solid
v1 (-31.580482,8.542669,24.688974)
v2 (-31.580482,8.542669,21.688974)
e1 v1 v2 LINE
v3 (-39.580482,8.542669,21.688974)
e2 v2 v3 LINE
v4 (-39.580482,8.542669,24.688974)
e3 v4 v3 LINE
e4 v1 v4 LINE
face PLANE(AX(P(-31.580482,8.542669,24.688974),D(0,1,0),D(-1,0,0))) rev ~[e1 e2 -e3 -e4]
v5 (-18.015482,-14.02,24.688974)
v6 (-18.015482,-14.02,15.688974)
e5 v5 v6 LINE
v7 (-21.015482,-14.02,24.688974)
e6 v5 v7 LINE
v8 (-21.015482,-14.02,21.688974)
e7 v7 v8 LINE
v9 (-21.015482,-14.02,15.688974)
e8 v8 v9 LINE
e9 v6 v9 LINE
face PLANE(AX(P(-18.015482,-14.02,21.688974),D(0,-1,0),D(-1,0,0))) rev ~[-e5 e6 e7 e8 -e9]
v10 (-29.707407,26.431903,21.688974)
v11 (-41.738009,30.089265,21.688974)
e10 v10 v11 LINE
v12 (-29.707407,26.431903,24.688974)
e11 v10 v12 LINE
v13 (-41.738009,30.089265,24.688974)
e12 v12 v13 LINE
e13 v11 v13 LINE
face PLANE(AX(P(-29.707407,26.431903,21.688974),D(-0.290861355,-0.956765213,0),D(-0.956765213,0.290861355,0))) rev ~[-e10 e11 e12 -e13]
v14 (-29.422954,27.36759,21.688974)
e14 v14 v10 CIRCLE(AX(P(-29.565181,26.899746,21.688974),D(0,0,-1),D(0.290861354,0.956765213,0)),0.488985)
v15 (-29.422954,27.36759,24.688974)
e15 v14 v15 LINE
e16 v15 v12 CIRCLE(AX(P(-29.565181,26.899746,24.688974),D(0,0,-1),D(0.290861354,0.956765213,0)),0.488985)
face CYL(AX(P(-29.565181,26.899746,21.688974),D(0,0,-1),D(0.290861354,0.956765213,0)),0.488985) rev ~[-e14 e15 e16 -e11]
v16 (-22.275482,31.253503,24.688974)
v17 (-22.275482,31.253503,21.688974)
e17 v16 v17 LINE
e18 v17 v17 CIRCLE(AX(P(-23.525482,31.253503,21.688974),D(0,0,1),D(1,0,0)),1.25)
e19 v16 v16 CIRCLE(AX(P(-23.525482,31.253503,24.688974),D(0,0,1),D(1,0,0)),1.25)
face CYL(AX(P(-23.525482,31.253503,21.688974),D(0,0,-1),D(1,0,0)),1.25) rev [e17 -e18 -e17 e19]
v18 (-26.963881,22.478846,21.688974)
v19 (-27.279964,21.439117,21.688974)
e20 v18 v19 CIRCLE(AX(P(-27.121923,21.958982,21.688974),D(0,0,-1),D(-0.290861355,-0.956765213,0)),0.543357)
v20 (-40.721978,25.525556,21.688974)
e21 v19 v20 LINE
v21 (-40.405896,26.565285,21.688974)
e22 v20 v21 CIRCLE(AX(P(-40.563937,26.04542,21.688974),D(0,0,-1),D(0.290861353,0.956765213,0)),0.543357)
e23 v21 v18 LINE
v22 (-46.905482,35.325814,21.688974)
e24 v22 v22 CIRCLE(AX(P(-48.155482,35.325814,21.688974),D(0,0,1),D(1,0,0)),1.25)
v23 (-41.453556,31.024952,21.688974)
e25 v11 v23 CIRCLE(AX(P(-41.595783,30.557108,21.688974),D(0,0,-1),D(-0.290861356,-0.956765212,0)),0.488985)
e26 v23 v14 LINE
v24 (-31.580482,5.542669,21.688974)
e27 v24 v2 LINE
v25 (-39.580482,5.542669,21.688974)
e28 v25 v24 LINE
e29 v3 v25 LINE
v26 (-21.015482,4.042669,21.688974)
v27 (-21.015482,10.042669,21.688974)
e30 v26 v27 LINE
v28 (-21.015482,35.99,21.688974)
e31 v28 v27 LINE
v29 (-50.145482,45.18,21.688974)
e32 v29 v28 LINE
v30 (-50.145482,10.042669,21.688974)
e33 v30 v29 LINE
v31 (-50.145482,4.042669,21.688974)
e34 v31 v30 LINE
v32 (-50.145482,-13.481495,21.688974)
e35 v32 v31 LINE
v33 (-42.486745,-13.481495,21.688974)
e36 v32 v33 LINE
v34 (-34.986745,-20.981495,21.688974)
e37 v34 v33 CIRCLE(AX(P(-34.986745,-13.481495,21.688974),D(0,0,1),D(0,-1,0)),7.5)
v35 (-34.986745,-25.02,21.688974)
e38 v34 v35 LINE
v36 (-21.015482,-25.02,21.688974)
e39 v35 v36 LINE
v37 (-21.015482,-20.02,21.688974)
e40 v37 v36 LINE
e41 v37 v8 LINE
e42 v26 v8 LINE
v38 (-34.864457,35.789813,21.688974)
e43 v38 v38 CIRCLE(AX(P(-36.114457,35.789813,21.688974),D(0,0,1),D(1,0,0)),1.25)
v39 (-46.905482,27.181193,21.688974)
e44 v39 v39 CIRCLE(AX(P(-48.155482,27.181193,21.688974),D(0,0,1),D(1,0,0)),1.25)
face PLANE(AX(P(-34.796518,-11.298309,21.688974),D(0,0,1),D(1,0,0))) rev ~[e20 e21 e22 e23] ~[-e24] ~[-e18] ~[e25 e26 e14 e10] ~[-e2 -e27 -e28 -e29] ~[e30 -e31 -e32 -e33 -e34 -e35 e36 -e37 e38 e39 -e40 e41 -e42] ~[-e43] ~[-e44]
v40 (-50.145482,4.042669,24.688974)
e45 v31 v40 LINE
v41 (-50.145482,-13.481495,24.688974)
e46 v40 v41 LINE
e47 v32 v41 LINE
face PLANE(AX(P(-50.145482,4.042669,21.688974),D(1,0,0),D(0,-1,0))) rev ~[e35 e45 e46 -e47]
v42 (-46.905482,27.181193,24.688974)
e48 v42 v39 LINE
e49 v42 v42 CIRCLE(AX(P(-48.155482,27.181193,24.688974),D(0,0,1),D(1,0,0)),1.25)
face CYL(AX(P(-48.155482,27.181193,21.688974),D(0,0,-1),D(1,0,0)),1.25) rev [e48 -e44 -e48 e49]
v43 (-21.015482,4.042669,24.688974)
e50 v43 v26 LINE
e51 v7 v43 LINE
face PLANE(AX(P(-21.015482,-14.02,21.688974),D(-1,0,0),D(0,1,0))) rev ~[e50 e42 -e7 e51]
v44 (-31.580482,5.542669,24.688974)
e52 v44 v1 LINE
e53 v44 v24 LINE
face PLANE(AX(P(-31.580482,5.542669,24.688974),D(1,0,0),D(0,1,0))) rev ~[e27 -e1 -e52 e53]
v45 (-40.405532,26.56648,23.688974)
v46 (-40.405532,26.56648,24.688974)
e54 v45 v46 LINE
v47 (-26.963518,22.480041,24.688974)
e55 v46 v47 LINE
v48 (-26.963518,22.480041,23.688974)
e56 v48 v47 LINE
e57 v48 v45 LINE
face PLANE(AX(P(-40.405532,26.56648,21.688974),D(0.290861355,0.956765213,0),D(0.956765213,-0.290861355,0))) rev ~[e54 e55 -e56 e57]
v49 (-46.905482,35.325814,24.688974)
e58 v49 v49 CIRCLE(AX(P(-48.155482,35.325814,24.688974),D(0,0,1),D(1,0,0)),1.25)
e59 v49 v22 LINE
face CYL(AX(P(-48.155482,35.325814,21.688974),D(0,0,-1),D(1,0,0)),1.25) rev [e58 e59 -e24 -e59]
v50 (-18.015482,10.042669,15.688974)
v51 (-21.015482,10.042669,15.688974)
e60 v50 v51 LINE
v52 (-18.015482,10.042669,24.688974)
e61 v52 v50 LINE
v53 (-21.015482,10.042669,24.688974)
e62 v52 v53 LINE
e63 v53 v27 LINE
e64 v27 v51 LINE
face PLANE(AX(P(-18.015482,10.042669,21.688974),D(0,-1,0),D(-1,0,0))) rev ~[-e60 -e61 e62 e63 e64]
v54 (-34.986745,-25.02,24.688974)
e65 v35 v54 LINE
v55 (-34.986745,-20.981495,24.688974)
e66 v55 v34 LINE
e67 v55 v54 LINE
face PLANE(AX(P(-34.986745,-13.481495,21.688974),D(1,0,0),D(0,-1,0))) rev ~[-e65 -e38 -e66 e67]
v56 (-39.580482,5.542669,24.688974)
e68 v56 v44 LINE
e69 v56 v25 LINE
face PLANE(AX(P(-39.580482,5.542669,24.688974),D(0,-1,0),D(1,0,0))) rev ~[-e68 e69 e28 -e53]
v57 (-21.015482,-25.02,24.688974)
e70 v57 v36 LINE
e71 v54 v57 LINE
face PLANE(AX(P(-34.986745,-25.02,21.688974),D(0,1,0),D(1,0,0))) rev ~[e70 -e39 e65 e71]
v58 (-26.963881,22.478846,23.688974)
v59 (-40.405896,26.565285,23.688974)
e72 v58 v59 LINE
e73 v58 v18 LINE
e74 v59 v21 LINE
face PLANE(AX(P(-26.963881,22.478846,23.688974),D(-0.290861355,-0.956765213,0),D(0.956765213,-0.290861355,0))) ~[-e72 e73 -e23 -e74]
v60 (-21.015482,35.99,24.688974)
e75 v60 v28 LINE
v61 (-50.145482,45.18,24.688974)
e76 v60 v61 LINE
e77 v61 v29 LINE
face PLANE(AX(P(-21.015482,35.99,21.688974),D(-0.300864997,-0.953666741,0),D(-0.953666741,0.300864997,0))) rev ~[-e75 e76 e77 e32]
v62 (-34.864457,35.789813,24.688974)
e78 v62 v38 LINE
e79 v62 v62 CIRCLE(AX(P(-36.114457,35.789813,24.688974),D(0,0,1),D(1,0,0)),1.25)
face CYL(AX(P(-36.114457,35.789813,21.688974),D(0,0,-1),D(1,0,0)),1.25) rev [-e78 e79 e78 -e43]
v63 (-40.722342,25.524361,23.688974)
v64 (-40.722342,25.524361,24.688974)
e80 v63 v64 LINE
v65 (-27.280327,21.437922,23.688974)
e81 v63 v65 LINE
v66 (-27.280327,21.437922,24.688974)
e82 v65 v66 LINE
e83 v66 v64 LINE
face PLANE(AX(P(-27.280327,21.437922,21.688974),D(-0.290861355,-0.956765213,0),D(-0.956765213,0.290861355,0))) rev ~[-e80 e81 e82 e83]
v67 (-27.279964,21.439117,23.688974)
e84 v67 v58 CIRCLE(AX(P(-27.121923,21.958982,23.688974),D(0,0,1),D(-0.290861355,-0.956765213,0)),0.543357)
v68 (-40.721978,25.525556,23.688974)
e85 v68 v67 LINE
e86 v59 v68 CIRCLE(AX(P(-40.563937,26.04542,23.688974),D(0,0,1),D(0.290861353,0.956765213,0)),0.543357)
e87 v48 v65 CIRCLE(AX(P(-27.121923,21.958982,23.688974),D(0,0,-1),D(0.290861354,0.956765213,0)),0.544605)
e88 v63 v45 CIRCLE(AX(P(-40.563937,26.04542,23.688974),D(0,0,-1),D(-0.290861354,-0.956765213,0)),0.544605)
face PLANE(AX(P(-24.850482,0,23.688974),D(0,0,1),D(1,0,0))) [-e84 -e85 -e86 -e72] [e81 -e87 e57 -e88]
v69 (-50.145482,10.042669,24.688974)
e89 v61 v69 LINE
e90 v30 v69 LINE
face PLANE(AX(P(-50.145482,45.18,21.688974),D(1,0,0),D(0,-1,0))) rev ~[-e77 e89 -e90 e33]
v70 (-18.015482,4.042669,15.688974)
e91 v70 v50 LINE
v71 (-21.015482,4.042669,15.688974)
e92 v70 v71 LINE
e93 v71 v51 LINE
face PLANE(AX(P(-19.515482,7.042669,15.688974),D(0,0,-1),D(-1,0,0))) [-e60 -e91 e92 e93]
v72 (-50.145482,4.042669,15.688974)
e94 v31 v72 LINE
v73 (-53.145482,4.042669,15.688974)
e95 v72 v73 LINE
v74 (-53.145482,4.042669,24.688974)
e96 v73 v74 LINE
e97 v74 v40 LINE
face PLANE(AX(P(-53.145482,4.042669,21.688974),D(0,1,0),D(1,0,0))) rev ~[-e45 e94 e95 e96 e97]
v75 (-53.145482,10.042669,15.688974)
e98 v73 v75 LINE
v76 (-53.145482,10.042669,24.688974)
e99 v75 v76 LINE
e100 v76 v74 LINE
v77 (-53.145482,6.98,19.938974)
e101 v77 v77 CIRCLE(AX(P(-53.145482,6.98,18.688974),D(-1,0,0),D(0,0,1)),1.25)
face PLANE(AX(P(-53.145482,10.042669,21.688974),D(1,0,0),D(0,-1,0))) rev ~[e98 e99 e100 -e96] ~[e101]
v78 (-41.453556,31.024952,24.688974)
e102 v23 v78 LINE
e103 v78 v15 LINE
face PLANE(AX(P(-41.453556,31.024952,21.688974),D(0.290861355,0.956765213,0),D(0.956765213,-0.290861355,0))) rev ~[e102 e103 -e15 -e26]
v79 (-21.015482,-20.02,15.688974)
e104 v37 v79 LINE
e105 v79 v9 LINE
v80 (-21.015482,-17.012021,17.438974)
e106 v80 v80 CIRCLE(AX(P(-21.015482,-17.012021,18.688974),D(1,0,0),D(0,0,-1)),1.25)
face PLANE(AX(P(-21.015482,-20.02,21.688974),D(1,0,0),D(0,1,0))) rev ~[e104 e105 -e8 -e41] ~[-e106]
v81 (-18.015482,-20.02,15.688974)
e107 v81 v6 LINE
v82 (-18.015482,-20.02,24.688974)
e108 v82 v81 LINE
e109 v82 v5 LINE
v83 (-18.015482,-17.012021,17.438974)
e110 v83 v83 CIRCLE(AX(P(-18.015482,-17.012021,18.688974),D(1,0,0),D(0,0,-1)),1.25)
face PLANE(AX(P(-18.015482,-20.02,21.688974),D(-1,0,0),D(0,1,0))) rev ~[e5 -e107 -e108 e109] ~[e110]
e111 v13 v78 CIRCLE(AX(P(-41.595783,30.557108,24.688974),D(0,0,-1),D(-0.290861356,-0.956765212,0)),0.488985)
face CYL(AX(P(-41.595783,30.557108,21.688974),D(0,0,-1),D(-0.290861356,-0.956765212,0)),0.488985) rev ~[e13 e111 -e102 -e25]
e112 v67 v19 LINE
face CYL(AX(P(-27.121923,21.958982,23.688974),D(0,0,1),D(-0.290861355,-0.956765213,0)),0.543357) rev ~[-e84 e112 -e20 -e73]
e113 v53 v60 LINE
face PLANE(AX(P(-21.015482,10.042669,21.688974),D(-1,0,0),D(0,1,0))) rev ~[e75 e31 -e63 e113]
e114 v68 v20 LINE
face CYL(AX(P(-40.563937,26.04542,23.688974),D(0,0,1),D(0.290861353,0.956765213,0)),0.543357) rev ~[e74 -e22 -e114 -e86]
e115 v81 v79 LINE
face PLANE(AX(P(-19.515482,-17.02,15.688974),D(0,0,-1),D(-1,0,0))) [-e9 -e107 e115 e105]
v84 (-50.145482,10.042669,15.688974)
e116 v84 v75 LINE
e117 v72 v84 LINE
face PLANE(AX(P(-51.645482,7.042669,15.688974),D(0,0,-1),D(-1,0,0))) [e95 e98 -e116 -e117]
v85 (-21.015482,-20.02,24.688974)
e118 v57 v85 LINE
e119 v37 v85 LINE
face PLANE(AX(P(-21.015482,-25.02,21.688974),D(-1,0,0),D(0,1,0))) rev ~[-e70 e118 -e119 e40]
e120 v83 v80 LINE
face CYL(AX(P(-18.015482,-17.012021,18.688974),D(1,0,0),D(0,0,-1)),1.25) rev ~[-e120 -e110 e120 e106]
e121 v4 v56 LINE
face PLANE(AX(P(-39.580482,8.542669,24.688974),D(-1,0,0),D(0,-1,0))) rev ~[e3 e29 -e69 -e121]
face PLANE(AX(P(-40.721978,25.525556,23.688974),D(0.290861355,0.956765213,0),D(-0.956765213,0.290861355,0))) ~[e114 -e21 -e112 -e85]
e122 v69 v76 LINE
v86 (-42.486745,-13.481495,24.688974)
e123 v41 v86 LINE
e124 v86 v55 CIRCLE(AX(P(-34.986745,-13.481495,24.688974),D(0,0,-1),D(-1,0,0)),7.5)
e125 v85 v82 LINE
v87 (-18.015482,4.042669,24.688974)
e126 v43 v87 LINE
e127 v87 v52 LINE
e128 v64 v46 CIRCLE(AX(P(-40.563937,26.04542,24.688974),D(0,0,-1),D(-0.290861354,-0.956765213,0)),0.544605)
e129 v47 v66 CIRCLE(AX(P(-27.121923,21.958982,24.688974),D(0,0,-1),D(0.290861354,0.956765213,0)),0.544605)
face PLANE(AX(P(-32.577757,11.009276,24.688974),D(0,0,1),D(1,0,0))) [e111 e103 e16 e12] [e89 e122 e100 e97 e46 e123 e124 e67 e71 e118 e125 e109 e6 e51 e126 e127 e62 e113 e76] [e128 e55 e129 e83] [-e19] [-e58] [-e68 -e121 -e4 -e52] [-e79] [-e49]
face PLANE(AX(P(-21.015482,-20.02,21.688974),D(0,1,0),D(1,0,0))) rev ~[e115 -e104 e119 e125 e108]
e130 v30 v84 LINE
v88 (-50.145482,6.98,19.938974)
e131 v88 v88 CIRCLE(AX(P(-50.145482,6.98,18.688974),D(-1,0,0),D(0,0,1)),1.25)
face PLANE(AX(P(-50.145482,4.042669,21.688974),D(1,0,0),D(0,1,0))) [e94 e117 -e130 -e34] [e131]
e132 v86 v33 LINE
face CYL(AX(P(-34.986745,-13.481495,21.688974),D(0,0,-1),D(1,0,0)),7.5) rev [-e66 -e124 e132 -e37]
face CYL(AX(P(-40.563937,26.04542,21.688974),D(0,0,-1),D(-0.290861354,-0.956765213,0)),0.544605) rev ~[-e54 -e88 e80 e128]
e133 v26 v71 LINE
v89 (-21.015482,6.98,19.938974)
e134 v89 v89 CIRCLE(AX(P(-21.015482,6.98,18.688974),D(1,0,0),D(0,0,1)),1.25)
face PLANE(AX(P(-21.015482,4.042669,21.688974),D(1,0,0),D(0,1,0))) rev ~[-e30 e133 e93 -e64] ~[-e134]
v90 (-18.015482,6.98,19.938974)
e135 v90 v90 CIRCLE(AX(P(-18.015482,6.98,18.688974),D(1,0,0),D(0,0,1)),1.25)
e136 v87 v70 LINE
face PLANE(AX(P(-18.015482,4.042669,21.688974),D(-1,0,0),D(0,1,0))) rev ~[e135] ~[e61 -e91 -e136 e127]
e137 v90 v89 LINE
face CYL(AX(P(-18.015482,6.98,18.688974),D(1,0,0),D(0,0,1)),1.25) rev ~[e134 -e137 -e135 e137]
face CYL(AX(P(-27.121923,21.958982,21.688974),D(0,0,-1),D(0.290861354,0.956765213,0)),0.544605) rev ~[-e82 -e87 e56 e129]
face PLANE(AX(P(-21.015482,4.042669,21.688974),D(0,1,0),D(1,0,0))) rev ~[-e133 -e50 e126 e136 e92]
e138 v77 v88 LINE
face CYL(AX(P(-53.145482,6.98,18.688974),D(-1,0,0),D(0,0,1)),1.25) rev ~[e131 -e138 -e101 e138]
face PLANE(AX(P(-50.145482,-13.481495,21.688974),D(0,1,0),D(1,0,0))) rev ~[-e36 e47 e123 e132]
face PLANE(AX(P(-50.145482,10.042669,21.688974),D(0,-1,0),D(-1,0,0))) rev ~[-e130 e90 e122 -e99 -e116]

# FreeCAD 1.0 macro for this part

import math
import FreeCAD as App
import Part
import Sketcher
Q = App.Units.Quantity


def add_polygon(sketch, points):
    """Adds a closed chain of lines whose ends are joined by coincident constraints."""
    first, n = sketch.GeometryCount, len(points)
    for a, b in zip(points, points[1:] + points[:1]):
        sketch.addGeometry(Part.LineSegment(App.Vector(*a, 0), App.Vector(*b, 0)), False)
    for i in range(n):
        sketch.addConstraint(Sketcher.Constraint("Coincident", first + i, 2, first + (i + 1) % n, 1))

doc = App.newDocument("Part")
body = doc.addObject("PartDesign::Body", "Body")

# Sketch on XZ plane
sketch1 = body.newObject("Sketcher::SketchObject", "Sketch")
sketch1.AttachmentSupport = (doc.getObject("XZ_Plane"), [""])
sketch1.MapMode = "FlatFace"
add_polygon(sketch1, [(-50.1, 21.7), (-50.1, 23.7), (-21, 23.7), (-21, 21.7)])  # lines 0-3
sketch1.addConstraint([
    Sketcher.Constraint("Vertical", 0),
    Sketcher.Constraint("Horizontal", 1),
    Sketcher.Constraint("Vertical", 2),
    Sketcher.Constraint("Horizontal", 3),
    Sketcher.Constraint("DistanceY", 0, 1, 0, 2, Q("2 mm")),
    Sketcher.Constraint("DistanceX", 1, 1, 1, 2, Q("29.13 mm")),
    Sketcher.Constraint("DistanceX", 0, 2, -1, 1, Q("50.145482 mm")),
    Sketcher.Constraint("DistanceY", -1, 1, 0, 2, Q("23.688974 mm")),
])
pad1 = body.newObject("PartDesign::Pad", "Pad")
pad1.Profile = sketch1
pad1.Length = 45.22
pad1.Reversed = True

# Sketch on XZ plane
sketch2 = body.newObject("Sketcher::SketchObject", "Sketch001")
sketch2.AttachmentSupport = (doc.getObject("XZ_Plane"), [""])
sketch2.MapMode = "FlatFace"
add_polygon(sketch2, [(-24.9, 23.7), (-24.9, 21.7), (-21, 21.7), (-21, 23.7)])  # lines 0-3
sketch2.addConstraint([
    Sketcher.Constraint("Vertical", 0),
    Sketcher.Constraint("Horizontal", 1),
    Sketcher.Constraint("Vertical", 2),
    Sketcher.Constraint("Horizontal", 3),
    Sketcher.Constraint("DistanceY", 0, 2, 0, 1, Q("2 mm")),
    Sketcher.Constraint("DistanceX", 1, 1, 1, 2, Q("3.835 mm")),
    Sketcher.Constraint("DistanceX", 0, 2, -1, 1, Q("24.850482 mm")),
    Sketcher.Constraint("DistanceY", -1, 1, 0, 2, Q("21.688974 mm")),
])
pad2 = body.newObject("PartDesign::Pad", "Pad001")
pad2.Profile = sketch2
pad2.Length = 25.02

# Sketch on XY plane
sketch3 = body.newObject("Sketcher::SketchObject", "Sketch002")
sketch3.AttachmentSupport = (doc.getObject("XY_Plane"), [""])
sketch3.MapMode = "FlatFace"
sketch3.AttachmentOffset = App.Placement(App.Vector(0, 0, 23.688974), App.Rotation())
add_polygon(sketch3, [(-21, -25), (-24.9, 0), (-24.9, -25)])  # lines 0-2
sketch3.addConstraint([
    Sketcher.Constraint("Vertical", 1),
    Sketcher.Constraint("Horizontal", 2),
    Sketcher.Constraint("PointOnObject", 0, 2, -1),
    Sketcher.Constraint("DistanceY", 1, 2, 1, 1, Q("25.02 mm")),
    Sketcher.Constraint("DistanceX", 2, 1, 2, 2, Q("3.835 mm")),
    Sketcher.Constraint("DistanceX", 0, 2, -1, 1, Q("24.850482 mm")),
])
pocket1 = body.newObject("PartDesign::Pocket", "Pocket")
pocket1.Profile = sketch3
pocket1.Length = 4

# Sketch on YZ plane
sketch4 = body.newObject("Sketcher::SketchObject", "Sketch003")
sketch4.AttachmentSupport = (doc.getObject("YZ_Plane"), [""])
sketch4.MapMode = "FlatFace"
sketch4.AttachmentOffset = App.Placement(App.Vector(0, 0, -21.015482), App.Rotation())
add_polygon(sketch4, [(-14, 23.7), (-20, 23.7), (-20, 21.7), (-14, 21.7)])  # lines 0-3
sketch4.addConstraint([
    Sketcher.Constraint("Horizontal", 0),
    Sketcher.Constraint("Vertical", 1),
    Sketcher.Constraint("Horizontal", 2),
    Sketcher.Constraint("Vertical", 3),
    Sketcher.Constraint("DistanceX", 0, 2, 0, 1, Q("6 mm")),
    Sketcher.Constraint("DistanceY", 1, 2, 1, 1, Q("2 mm")),
    Sketcher.Constraint("DistanceX", 0, 2, -1, 1, Q("20.02 mm")),
    Sketcher.Constraint("DistanceY", -1, 1, 0, 2, Q("23.688974 mm")),
])
pad3 = body.newObject("PartDesign::Pad", "Pad002")
pad3.Profile = sketch4
pad3.Length = 3

# Sketch on XY plane
sketch5 = body.newObject("Sketcher::SketchObject", "Sketch004")
sketch5.AttachmentSupport = (doc.getObject("XY_Plane"), [""])
sketch5.MapMode = "FlatFace"
sketch5.AttachmentOffset = App.Placement(App.Vector(0, 0, 21.688974), App.Rotation())
add_polygon(sketch5, [(-18, -14), (-18, -20), (-21, -20), (-21, -14)])  # lines 0-3
sketch5.addConstraint([
    Sketcher.Constraint("Vertical", 0),
    Sketcher.Constraint("Horizontal", 1),
    Sketcher.Constraint("Vertical", 2),
    Sketcher.Constraint("Horizontal", 3),
    Sketcher.Constraint("DistanceX", 1, 2, 1, 1, Q("3 mm")),
    Sketcher.Constraint("DistanceY", 0, 2, 0, 1, Q("6 mm")),
    Sketcher.Constraint("DistanceY", 0, 2, -1, 1, Q("20.02 mm")),
    Sketcher.Constraint("DistanceX", 0, 2, -1, 1, Q("18.015482 mm")),
])
pad4 = body.newObject("PartDesign::Pad", "Pad003")
pad4.Profile = sketch5
pad4.Length = 6
pad4.Reversed = True

# Sketch on YZ plane
sketch6 = body.newObject("Sketcher::SketchObject", "Sketch005")
sketch6.AttachmentSupport = (doc.getObject("YZ_Plane"), [""])
sketch6.MapMode = "FlatFace"
sketch6.AttachmentOffset = App.Placement(App.Vector(0, 0, -18.015482), App.Rotation())
sketch6.addGeometry(Part.Circle(App.Vector(-17, 18.7, 0), App.Vector(0, 0, 1), 1.2), False)
sketch6.addConstraint([
    Sketcher.Constraint("Diameter", 0, Q("2.5 mm")),
    Sketcher.Constraint("DistanceX", 0, 3, -1, 1, Q("17.012021 mm")),
    Sketcher.Constraint("DistanceY", -1, 1, 0, 3, Q("18.688974 mm")),
])
pocket2 = body.newObject("PartDesign::Pocket", "Pocket001")
pocket2.Profile = sketch6
pocket2.Length = 6

# Sketch on XY plane
sketch7 = body.newObject("Sketcher::SketchObject", "Sketch006")
sketch7.AttachmentSupport = (doc.getObject("XY_Plane"), [""])
sketch7.MapMode = "FlatFace"
sketch7.AttachmentOffset = App.Placement(App.Vector(0, 0, 23.688974), App.Rotation())
add_polygon(sketch7, [(-21, 38), (-21, 45), (-50, 45)])  # lines 0-2
sketch7.addConstraint([
    Sketcher.Constraint("Vertical", 0),
    Sketcher.Constraint("Horizontal", 1),
    Sketcher.Constraint("DistanceX", 1, 2, 1, 1, Q("29.13 mm")),
    Sketcher.Constraint("DistanceY", 0, 1, 0, 2, Q("7.65 mm")),
    Sketcher.Constraint("DistanceY", -1, 1, 0, 2, Q("45.22 mm")),
    Sketcher.Constraint("DistanceX", 0, 2, -1, 1, Q("21.015482 mm")),
])
pocket3 = body.newObject("PartDesign::Pocket", "Pocket002")
pocket3.Profile = sketch7
pocket3.Length = 4

# Sketch on XY plane
sketch8 = body.newObject("Sketcher::SketchObject", "Sketch007")
sketch8.AttachmentSupport = (doc.getObject("XY_Plane"), [""])
sketch8.MapMode = "FlatFace"
sketch8.AttachmentOffset = App.Placement(App.Vector(0, 0, 23.688974), App.Rotation())
sketch8.addGeometry([
    Part.Circle(App.Vector(-48.2, 35.3, 0), App.Vector(0, 0, 1), 1.2),
    Part.Circle(App.Vector(-48.2, 27.2, 0), App.Vector(0, 0, 1), 1.2),
], False)
sketch8.addConstraint([
    Sketcher.Constraint("Equal", 0, 1),
    Sketcher.Constraint("Vertical", 0, 3, 1, 3),
    Sketcher.Constraint("Diameter", 0, Q("2.5 mm")),
    Sketcher.Constraint("DistanceX", 0, 3, -1, 1, Q("48.155482 mm")),
    Sketcher.Constraint("DistanceY", 1, 3, 0, 3, Q("8.144621 mm")),
    Sketcher.Constraint("DistanceY", -1, 1, 0, 3, Q("35.325814 mm")),
])
pocket4 = body.newObject("PartDesign::Pocket", "Pocket003")
pocket4.Profile = sketch8
pocket4.Length = 5

# Sketch on XY plane
sketch9 = body.newObject("Sketcher::SketchObject", "Sketch008")
sketch9.AttachmentSupport = (doc.getObject("XY_Plane"), [""])
sketch9.MapMode = "FlatFace"
sketch9.AttachmentOffset = App.Placement(App.Vector(0, 0, 23.688974), App.Rotation())
add_polygon(sketch9, [(-21, 36), (-21, 37.6), (-50.1, 45.2)])  # lines 0-2
sketch9.addConstraint([
    Sketcher.Constraint("Vertical", 0),
    Sketcher.Constraint("DistanceY", 0, 1, 0, 2, Q("1.58 mm")),
    Sketcher.Constraint("DistanceY", -1, 1, 0, 2, Q("37.57 mm")),
    Sketcher.Constraint("DistanceY", -1, 1, 1, 2, Q("45.22 mm")),
    Sketcher.Constraint("DistanceX", 1, 2, 0, 2, Q("29.13 mm")),
    Sketcher.Constraint("DistanceX", 0, 2, -1, 1, Q("21.015482 mm")),
])
pocket5 = body.newObject("PartDesign::Pocket", "Pocket004")
pocket5.Profile = sketch9
pocket5.Length = 4.86

# Sketch on XY plane
sketch10 = body.newObject("Sketcher::SketchObject", "Sketch009")
sketch10.AttachmentSupport = (doc.getObject("XY_Plane"), [""])
sketch10.MapMode = "FlatFace"
sketch10.AttachmentOffset = App.Placement(App.Vector(0, 0, 23.688974), App.Rotation())
add_polygon(sketch10, [(-50.145, 45.22), (-50.145, 45.18), (-21.015, 35.99)])  # lines 0-2
sketch10.addConstraint([
    Sketcher.Constraint("Vertical", 0),
    Sketcher.Constraint("DistanceY", 0, 2, 0, 1, Q("0.04 mm")),
    Sketcher.Constraint("DistanceY", -1, 1, 0, 2, Q("45.18 mm")),
    Sketcher.Constraint("DistanceY", -1, 1, 1, 2, Q("35.99 mm")),
    Sketcher.Constraint("DistanceX", 0, 2, 1, 2, Q("29.13 mm")),
    Sketcher.Constraint("DistanceX", 0, 2, -1, 1, Q("50.145482 mm")),
])
pocket6 = body.newObject("PartDesign::Pocket", "Pocket005")
pocket6.Profile = sketch10
pocket6.Length = 4
body2 = doc.addObject("PartDesign::Body", "Body001")
doc.recompute()

mirroring = doc.addObject("Part::Mirroring", "Mirroring")
mirroring.Source = body
mirroring.Base = App.Vector(0, 0, 15.688974)
mirroring.Normal = App.Vector(0, 0, -1)
body2.BaseFeature = mirroring
doc.recompute()

# Sketch on XY plane
sketch11 = body2.newObject("Sketcher::SketchObject", "Sketch010")
sketch11.AttachmentSupport = (doc.getObject("XY_Plane001"), [""])
sketch11.MapMode = "FlatFace"
sketch11.AttachmentOffset = App.Placement(App.Vector(0, 0, 7.688974), App.Rotation())
sketch11.addGeometry([
    Part.LineSegment(App.Vector(-41.45, 31.03, 0), App.Vector(-29.42, 27.37, 0)),  # 0
    Part.ArcOfCircle(Part.Circle(App.Vector(-29.57, 26.9, 0), App.Vector(0, 0, 1), 0.49), math.radians(-107), math.radians(73)),  # 1
    Part.LineSegment(App.Vector(-29.71, 26.43, 0), App.Vector(-41.74, 30.09, 0)),  # 2
    Part.ArcOfCircle(Part.Circle(App.Vector(-41.6, 30.56, 0), App.Vector(0, 0, 1), 0.49), math.radians(73), math.radians(253)),  # 3
    Part.LineSegment(App.Vector(-40.41, 26.57, 0), App.Vector(-26.96, 22.48, 0)),  # 4
    Part.ArcOfCircle(Part.Circle(App.Vector(-27.12, 21.96, 0), App.Vector(0, 0, 1), 0.54), math.radians(-107), math.radians(73)),  # 5
    Part.LineSegment(App.Vector(-27.28, 21.44, 0), App.Vector(-40.72, 25.53, 0)),  # 6
    Part.ArcOfCircle(Part.Circle(App.Vector(-40.56, 26.05, 0), App.Vector(0, 0, 1), 0.54), math.radians(73), math.radians(253)),  # 7
], False)
sketch11.addConstraint([
    Sketcher.Constraint("Tangent", 0, 2, 1, 2),
    Sketcher.Constraint("Tangent", 1, 1, 2, 1),
    Sketcher.Constraint("Tangent", 2, 2, 3, 2),
    Sketcher.Constraint("Tangent", 3, 1, 0, 1),
    Sketcher.Constraint("Tangent", 4, 2, 5, 2),
    Sketcher.Constraint("Tangent", 5, 1, 6, 1),
    Sketcher.Constraint("Tangent", 6, 2, 7, 2),
    Sketcher.Constraint("Tangent", 7, 1, 4, 1),
    Sketcher.Constraint("Equal", 1, 3),
    Sketcher.Constraint("Equal", 5, 7),
    Sketcher.Constraint("Parallel", 2, 4),
    Sketcher.Constraint("Radius", 1, Q("0.490919 mm")),
    Sketcher.Constraint("Radius", 5, Q("0.543357 mm")),
    Sketcher.Constraint("DistanceX", 3, 3, 1, 3, Q("12.030602 mm")),
    Sketcher.Constraint("DistanceX", 1, 3, 4, 2, Q("2.601299 mm")),
    Sketcher.Constraint("DistanceY", 4, 2, 1, 3, Q("4.4209 mm")),
    Sketcher.Constraint("Distance", 4, Q("14.049439 mm")),
    Sketcher.Constraint("DistanceX", 1, 3, -1, 1, Q("29.565181 mm")),
    Sketcher.Constraint("DistanceY", -1, 1, 3, 3, Q("30.557108 mm")),
    Sketcher.Constraint("DistanceY", -1, 1, 5, 3, Q("21.958982 mm")),
])
pocket7 = body2.newObject("PartDesign::Pocket", "Pocket006")
pocket7.Profile = sketch11
pocket7.Length = 15
pocket7.Reversed = True
body3 = doc.addObject("PartDesign::Body", "Body002")
doc.recompute()

mirroring2 = doc.addObject("Part::Mirroring", "Mirroring001")
mirroring2.Source = body2
mirroring2.Base = App.Vector(0, 0, 15.688974)
mirroring2.Normal = App.Vector(0, 0, 1)
body3.BaseFeature = mirroring2
doc.recompute()

# Sketch on XY plane
sketch12 = body3.newObject("Sketcher::SketchObject", "Sketch011")
sketch12.AttachmentSupport = (doc.getObject("XY_Plane002"), [""])
sketch12.MapMode = "FlatFace"
sketch12.AttachmentOffset = App.Placement(App.Vector(0, 0, 23.688974), App.Rotation())
sketch12.addGeometry(Part.Circle(App.Vector(-23.5, 31.3, 0), App.Vector(0, 0, 1), 1.2), False)
sketch12.addConstraint([
    Sketcher.Constraint("Diameter", 0, Q("2.5 mm")),
    Sketcher.Constraint("DistanceX", 0, 3, -1, 1, Q("23.525482 mm")),
    Sketcher.Constraint("DistanceY", -1, 1, 0, 3, Q("31.253503 mm")),
])
pocket8 = body3.newObject("PartDesign::Pocket", "Pocket007")
pocket8.Profile = sketch12
pocket8.Length = 5

# Sketch on XY plane
sketch13 = body3.newObject("Sketcher::SketchObject", "Sketch012")
sketch13.AttachmentSupport = (doc.getObject("XY_Plane002"), [""])
sketch13.MapMode = "FlatFace"
sketch13.AttachmentOffset = App.Placement(App.Vector(0, 0, 23.688974), App.Rotation())
sketch13.addGeometry(Part.Circle(App.Vector(-36.1, 35.8, 0), App.Vector(0, 0, 1), 1.2), False)
sketch13.addConstraint([
    Sketcher.Constraint("Diameter", 0, Q("2.5 mm")),
    Sketcher.Constraint("DistanceX", 0, 3, -1, 1, Q("36.114457 mm")),
    Sketcher.Constraint("DistanceY", -1, 1, 0, 3, Q("35.789813 mm")),
])
pocket9 = body3.newObject("PartDesign::Pocket", "Pocket008")
pocket9.Profile = sketch13
pocket9.Length = 5

# Sketch on YZ plane
sketch14 = body3.newObject("Sketcher::SketchObject", "Sketch013")
sketch14.AttachmentSupport = (doc.getObject("YZ_Plane002"), [""])
sketch14.MapMode = "FlatFace"
sketch14.AttachmentOffset = App.Placement(App.Vector(0, 0, -50.145482), App.Rotation())
add_polygon(sketch14, [(10, 21.7), (4, 21.7), (4, 23.7), (10, 23.7)])  # lines 0-3
sketch14.addConstraint([
    Sketcher.Constraint("Horizontal", 0),
    Sketcher.Constraint("Vertical", 1),
    Sketcher.Constraint("Horizontal", 2),
    Sketcher.Constraint("Vertical", 3),
    Sketcher.Constraint("DistanceX", 0, 2, 0, 1, Q("6 mm")),
    Sketcher.Constraint("DistanceY", 1, 1, 1, 2, Q("2 mm")),
    Sketcher.Constraint("DistanceX", -1, 1, 0, 2, Q("4.042669 mm")),
    Sketcher.Constraint("DistanceY", -1, 1, 0, 2, Q("21.688974 mm")),
])
pad5 = body3.newObject("PartDesign::Pad", "Pad004")
pad5.Profile = sketch14
pad5.Length = 3
pad5.Reversed = True

# Sketch on XY plane
sketch15 = body3.newObject("Sketcher::SketchObject", "Sketch014")
sketch15.AttachmentSupport = (doc.getObject("XY_Plane002"), [""])
sketch15.MapMode = "FlatFace"
sketch15.AttachmentOffset = App.Placement(App.Vector(0, 0, 21.688974), App.Rotation())
add_polygon(sketch15, [(-50.1, 10), (-50.1, 4), (-53.1, 4), (-53.1, 10)])  # lines 0-3
sketch15.addConstraint([
    Sketcher.Constraint("Vertical", 0),
    Sketcher.Constraint("Horizontal", 1),
    Sketcher.Constraint("Vertical", 2),
    Sketcher.Constraint("Horizontal", 3),
    Sketcher.Constraint("DistanceX", 1, 2, 1, 1, Q("3 mm")),
    Sketcher.Constraint("DistanceY", 0, 2, 0, 1, Q("6 mm")),
    Sketcher.Constraint("DistanceX", 0, 2, -1, 1, Q("50.145482 mm")),
    Sketcher.Constraint("DistanceY", -1, 1, 0, 2, Q("4.042669 mm")),
])
pad6 = body3.newObject("PartDesign::Pad", "Pad005")
pad6.Profile = sketch15
pad6.Length = 6
pad6.Reversed = True

# Sketch on YZ plane
sketch16 = body3.newObject("Sketcher::SketchObject", "Sketch015")
sketch16.AttachmentSupport = (doc.getObject("YZ_Plane002"), [""])
sketch16.MapMode = "FlatFace"
sketch16.AttachmentOffset = App.Placement(App.Vector(0, 0, -53.145482), App.Rotation())
sketch16.addGeometry(Part.Circle(App.Vector(7, 18.7, 0), App.Vector(0, 0, 1), 1.3), False)
sketch16.addConstraint([
    Sketcher.Constraint("Diameter", 0, Q("2.5 mm")),
    Sketcher.Constraint("DistanceX", -1, 1, 0, 3, Q("6.98 mm")),
    Sketcher.Constraint("DistanceY", -1, 1, 0, 3, Q("18.688974 mm")),
])
pocket10 = body3.newObject("PartDesign::Pocket", "Pocket009")
pocket10.Profile = sketch16
pocket10.Length = 6
pocket10.Reversed = True

# Sketch on YZ plane
sketch17 = body3.newObject("Sketcher::SketchObject", "Sketch016")
sketch17.AttachmentSupport = (doc.getObject("YZ_Plane002"), [""])
sketch17.MapMode = "FlatFace"
sketch17.AttachmentOffset = App.Placement(App.Vector(0, 0, -21.015482), App.Rotation())
add_polygon(sketch17, [(10, 23.7), (4, 23.7), (4, 21.7), (10, 21.7)])  # lines 0-3
sketch17.addConstraint([
    Sketcher.Constraint("Horizontal", 0),
    Sketcher.Constraint("Vertical", 1),
    Sketcher.Constraint("Horizontal", 2),
    Sketcher.Constraint("Vertical", 3),
    Sketcher.Constraint("DistanceX", 0, 2, 0, 1, Q("6 mm")),
    Sketcher.Constraint("DistanceY", 1, 2, 1, 1, Q("2 mm")),
    Sketcher.Constraint("DistanceX", -1, 1, 0, 2, Q("4.042669 mm")),
    Sketcher.Constraint("DistanceY", -1, 1, 0, 2, Q("23.688974 mm")),
])
pad7 = body3.newObject("PartDesign::Pad", "Pad006")
pad7.Profile = sketch17
pad7.Length = 3

# Sketch on XY plane
sketch18 = body3.newObject("Sketcher::SketchObject", "Sketch017")
sketch18.AttachmentSupport = (doc.getObject("XY_Plane002"), [""])
sketch18.MapMode = "FlatFace"
sketch18.AttachmentOffset = App.Placement(App.Vector(0, 0, 21.688974), App.Rotation())
add_polygon(sketch18, [(-18, 10), (-18, 4), (-21, 4), (-21, 10)])  # lines 0-3
sketch18.addConstraint([
    Sketcher.Constraint("Vertical", 0),
    Sketcher.Constraint("Horizontal", 1),
    Sketcher.Constraint("Vertical", 2),
    Sketcher.Constraint("Horizontal", 3),
    Sketcher.Constraint("DistanceX", 1, 2, 1, 1, Q("3 mm")),
    Sketcher.Constraint("DistanceY", 0, 2, 0, 1, Q("6 mm")),
    Sketcher.Constraint("DistanceX", 0, 2, -1, 1, Q("18.015482 mm")),
    Sketcher.Constraint("DistanceY", -1, 1, 0, 2, Q("4.042669 mm")),
])
pad8 = body3.newObject("PartDesign::Pad", "Pad007")
pad8.Profile = sketch18
pad8.Length = 6
pad8.Reversed = True

# Sketch on YZ plane
sketch19 = body3.newObject("Sketcher::SketchObject", "Sketch018")
sketch19.AttachmentSupport = (doc.getObject("YZ_Plane002"), [""])
sketch19.MapMode = "FlatFace"
sketch19.AttachmentOffset = App.Placement(App.Vector(0, 0, -18.015482), App.Rotation())
sketch19.addGeometry(Part.Circle(App.Vector(7, 18.7, 0), App.Vector(0, 0, 1), 1.2), False)
sketch19.addConstraint([
    Sketcher.Constraint("Diameter", 0, Q("2.5 mm")),
    Sketcher.Constraint("DistanceX", -1, 1, 0, 3, Q("6.98 mm")),
    Sketcher.Constraint("DistanceY", -1, 1, 0, 3, Q("18.688974 mm")),
])
pocket11 = body3.newObject("PartDesign::Pocket", "Pocket010")
pocket11.Profile = sketch19
pocket11.Length = 6

# Sketch on XY plane
sketch20 = body3.newObject("Sketcher::SketchObject", "Sketch019")
sketch20.AttachmentSupport = (doc.getObject("XY_Plane002"), [""])
sketch20.MapMode = "FlatFace"
sketch20.AttachmentOffset = App.Placement(App.Vector(0, 0, 23.688974), App.Rotation())
add_polygon(sketch20, [(-50, 0), (-50, -13), (-35, -13), (-35, -25), (-21, -25), (-25, 0)])  # lines 0-5
sketch20.addConstraint([
    Sketcher.Constraint("Vertical", 0),
    Sketcher.Constraint("Horizontal", 1),
    Sketcher.Constraint("Vertical", 2),
    Sketcher.Constraint("Horizontal", 3),
    Sketcher.Constraint("Horizontal", 5),
    Sketcher.Constraint("PointOnObject", 4, 2, -1),
    Sketcher.Constraint("DistanceX", 5, 2, 5, 1, Q("25.295 mm")),
    Sketcher.Constraint("DistanceY", 2, 2, -1, 1, Q("25.02 mm")),
    Sketcher.Constraint("DistanceX", 0, 2, 3, 2, Q("29.13 mm")),
    Sketcher.Constraint("DistanceX", 1, 1, 1, 2, Q("15.158737 mm")),
    Sketcher.Constraint("DistanceY", 0, 2, 0, 1, Q("13.481495 mm")),
    Sketcher.Constraint("DistanceX", 0, 2, -1, 1, Q("50.145482 mm")),
])
pad9 = body3.newObject("PartDesign::Pad", "Pad008")
pad9.Profile = sketch20
pad9.Type = "TwoLengths"
pad9.Length = 1
pad9.Length2 = 2

# Sketch on XY plane
sketch21 = body3.newObject("Sketcher::SketchObject", "Sketch020")
sketch21.AttachmentSupport = (doc.getObject("XY_Plane002"), [""])
sketch21.MapMode = "FlatFace"
sketch21.AttachmentOffset = App.Placement(App.Vector(0, 0, 23.688974), App.Rotation())
sketch21.addGeometry(Part.Circle(App.Vector(-35, -13, 0), App.Vector(0, 0, 1), 8), False)
sketch21.addConstraint([
    Sketcher.Constraint("Diameter", 0, Q("15 mm")),
    Sketcher.Constraint("DistanceX", 0, 3, -1, 1, Q("34.986745 mm")),
    Sketcher.Constraint("DistanceY", 0, 3, -1, 1, Q("13.481495 mm")),
])
pocket12 = body3.newObject("PartDesign::Pocket", "Pocket011")
pocket12.Profile = sketch21
pocket12.Type = "ThroughAll"
pocket12.Midplane = True

# Sketch on XY plane
sketch22 = body3.newObject("Sketcher::SketchObject", "Sketch021")
sketch22.AttachmentSupport = (doc.getObject("XY_Plane002"), [""])
sketch22.MapMode = "FlatFace"
sketch22.AttachmentOffset = App.Placement(App.Vector(0, 0, 23.688974), App.Rotation())
add_polygon(sketch22, [(-50.15, 45.18), (-50.15, 10.04), (-53.15, 10.04), (-53.15, 4.04), (-50.15, 4.04), (-50.15, 0), (-24.85, 0), (-21.02, -25.02), (-21.02, -20.02), (-18.02, -20.02), (-18.02, -14.02), (-21.02, -14.02), (-21.02, 4.04), (-18.02, 4.04), (-18.02, 10.04), (-21.02, 10.04), (-21.02, 35.99)])  # lines 0-16
sketch22.addGeometry(Part.Circle(App.Vector(-48.16, 27.18, 0), App.Vector(0, 0, 1), 1.25), False)  # 17
sketch22.addGeometry(Part.ArcOfCircle(Part.Circle(App.Vector(-27.12, 21.96, 0), App.Vector(0, 0, 1), 0.54), math.radians(-107), math.radians(73)), False)  # 18
sketch22.addGeometry(Part.LineSegment(App.Vector(-27.28, 21.44, 0), App.Vector(-40.72, 25.52, 0)), False)  # 19
sketch22.addGeometry(Part.ArcOfCircle(Part.Circle(App.Vector(-40.56, 26.05, 0), App.Vector(0, 0, 1), 0.54), math.radians(73), math.radians(253)), False)  # 20
sketch22.addGeometry(Part.LineSegment(App.Vector(-40.41, 26.57, 0), App.Vector(-26.96, 22.48, 0)), False)  # 21
sketch22.addGeometry(Part.ArcOfCircle(Part.Circle(App.Vector(-41.6, 30.56, 0), App.Vector(0, 0, 1), 0.49), math.radians(73), math.radians(253)), False)  # 22
sketch22.addGeometry(Part.LineSegment(App.Vector(-41.45, 31.02, 0), App.Vector(-29.42, 27.37, 0)), False)  # 23
sketch22.addGeometry(Part.ArcOfCircle(Part.Circle(App.Vector(-29.57, 26.9, 0), App.Vector(0, 0, 1), 0.49), math.radians(-107), math.radians(73)), False)  # 24
sketch22.addGeometry(Part.LineSegment(App.Vector(-29.71, 26.43, 0), App.Vector(-41.74, 30.09, 0)), False)  # 25
sketch22.addGeometry(Part.Circle(App.Vector(-48.16, 35.33, 0), App.Vector(0, 0, 1), 1.25), False)  # 26
sketch22.addGeometry(Part.Circle(App.Vector(-36.11, 35.79, 0), App.Vector(0, 0, 1), 1.25), False)  # 27
sketch22.addGeometry(Part.Circle(App.Vector(-23.53, 31.25, 0), App.Vector(0, 0, 1), 1.25), False)  # 28
sketch22.addConstraint([
    Sketcher.Constraint("Tangent", 18, 1, 19, 1),
    Sketcher.Constraint("Tangent", 19, 2, 20, 2),
    Sketcher.Constraint("Tangent", 20, 1, 21, 1),
    Sketcher.Constraint("Tangent", 21, 2, 18, 2),
    Sketcher.Constraint("Tangent", 22, 1, 23, 1),
    Sketcher.Constraint("Tangent", 23, 2, 24, 2),
    Sketcher.Constraint("Tangent", 24, 1, 25, 1),
    Sketcher.Constraint("Tangent", 25, 2, 22, 2),
    Sketcher.Constraint("Vertical", 0),
    Sketcher.Constraint("Horizontal", 1),
    Sketcher.Constraint("Vertical", 2),
    Sketcher.Constraint("Horizontal", 3),
    Sketcher.Constraint("Vertical", 4),
    Sketcher.Constraint("Horizontal", 5),
    Sketcher.Constraint("Vertical", 7),
    Sketcher.Constraint("Horizontal", 8),
    Sketcher.Constraint("Vertical", 9),
    Sketcher.Constraint("Horizontal", 10),
    Sketcher.Constraint("Vertical", 11),
    Sketcher.Constraint("Horizontal", 12),
    Sketcher.Constraint("Vertical", 13),
    Sketcher.Constraint("Horizontal", 14),
    Sketcher.Constraint("Vertical", 15),
    Sketcher.Constraint("Equal", 18, 20),
    Sketcher.Constraint("Equal", 22, 24),
    Sketcher.Constraint("Equal", 17, 26),
    Sketcher.Constraint("Equal", 26, 27),
    Sketcher.Constraint("Equal", 27, 28),
    Sketcher.Constraint("PointOnObject", 4, 2, -1),
    Sketcher.Constraint("Parallel", 21, 23),
    Sketcher.Constraint("Horizontal", 3, 2, 11, 2),
    Sketcher.Constraint("Horizontal", 1, 2, 13, 2),
    Sketcher.Constraint("Vertical", 17, 3, 26, 3),
    Sketcher.Constraint("Vertical", 0, 2, 3, 2),
    Sketcher.Constraint("Vertical", 7, 2, 10, 2),
    Sketcher.Constraint("Vertical", 9, 2, 12, 2),
    Sketcher.Constraint("Vertical", 11, 2, 14, 2),
    Sketcher.Constraint("Equal", 3, 8),
    Sketcher.Constraint("Equal", 2, 9),
    Sketcher.Constraint("Diameter", 17, Q("2.5 mm")),
    Sketcher.Constraint("DistanceX", 1, 2, 1, 1, Q("3 mm")),
    Sketcher.Constraint("DistanceY", 2, 2, 2, 1, Q("6 mm")),
    Sketcher.Constraint("DistanceY", 7, 1, 7, 2, Q("5 mm")),
    Sketcher.Constraint("DistanceX", 5, 1, 5, 2, Q("25.295 mm")),
    Sketcher.Constraint("DistanceY", 6, 2, -1, 1, Q("25.02 mm")),
    Sketcher.Constraint("DistanceY", -1, 1, 15, 2, Q("35.99 mm")),
    Sketcher.Constraint("DistanceY", -1, 1, 16, 2, Q("45.18 mm")),
    Sketcher.Constraint("DistanceX", 0, 2, 17, 3, Q("1.99 mm")),
    Sketcher.Constraint("DistanceX", 4, 2, 6, 2, Q("29.13 mm")),
    Sketcher.Constraint("DistanceX", 28, 3, 15, 2, Q("2.51 mm")),
    Sketcher.Constraint("Radius", 18, Q("0.544605 mm")),
    Sketcher.Constraint("Radius", 22, Q("0.488985 mm")),
    Sketcher.Constraint("DistanceY", 26, 3, 27, 3, Q("0.463999 mm")),
    Sketcher.Constraint("DistanceY", 0, 2, 0, 1, Q("35.137331 mm")),
    Sketcher.Constraint("DistanceX", 17, 3, 22, 3, Q("6.559699 mm")),
    Sketcher.Constraint("DistanceX", 22, 3, 24, 3, Q("12.030602 mm")),
    Sketcher.Constraint("DistanceY", 18, 1, 20, 3, Q("4.607498 mm")),
    Sketcher.Constraint("DistanceX", 22, 1, 27, 3, Q("5.339099 mm")),
    Sketcher.Constraint("Distance", 19, Q("14.049439 mm")),
    Sketcher.Constraint("DistanceX", 17, 3, -1, 1, Q("48.155482 mm")),
    Sketcher.Constraint("DistanceY", -1, 1, 18, 3, Q("21.958982 mm")),
    Sketcher.Constraint("DistanceY", -1, 1, 22, 3, Q("30.557108 mm")),
    Sketcher.Constraint("DistanceX", 19, 2, -1, 1, Q("40.722342 mm")),
    Sketcher.Constraint("DistanceY", 18, 3, 17, 3, Q("5.222211 mm")),
    Sketcher.Constraint("DistanceY", 17, 3, 26, 3, Q("8.144621 mm")),
    Sketcher.Constraint("DistanceY", 18, 3, 28, 3, Q("9.294522 mm")),
])
pad10 = body3.newObject("PartDesign::Pad", "Pad009")
pad10.Profile = sketch22
pad10.Type = "TwoLengths"
pad10.Length = 1
pad10.Length2 = 2

# Sketch on XY plane
sketch23 = body3.newObject("Sketcher::SketchObject", "Sketch022")
sketch23.AttachmentSupport = (doc.getObject("XY_Plane002"), [""])
sketch23.MapMode = "FlatFace"
sketch23.AttachmentOffset = App.Placement(App.Vector(0, 0, 24.688974), App.Rotation())
add_polygon(sketch23, [(-31.6, 8.5), (-39.6, 8.5), (-39.6, 5.5), (-31.6, 5.5)])  # lines 0-3
sketch23.addConstraint([
    Sketcher.Constraint("Horizontal", 0),
    Sketcher.Constraint("Vertical", 1),
    Sketcher.Constraint("Horizontal", 2),
    Sketcher.Constraint("Vertical", 3),
    Sketcher.Constraint("DistanceX", 0, 2, 0, 1, Q("8 mm")),
    Sketcher.Constraint("DistanceY", 1, 2, 1, 1, Q("3 mm")),
    Sketcher.Constraint("DistanceX", 0, 2, -1, 1, Q("39.580482 mm")),
    Sketcher.Constraint("DistanceY", -1, 1, 0, 2, Q("8.542669 mm")),
])
pocket13 = body3.newObject("PartDesign::Pocket", "Pocket012")
pocket13.Profile = sketch23
pocket13.Length = 10
body.Visibility = False
body2.Visibility = False
mirroring.Visibility = False
mirroring2.Visibility = False

doc.recompute()
